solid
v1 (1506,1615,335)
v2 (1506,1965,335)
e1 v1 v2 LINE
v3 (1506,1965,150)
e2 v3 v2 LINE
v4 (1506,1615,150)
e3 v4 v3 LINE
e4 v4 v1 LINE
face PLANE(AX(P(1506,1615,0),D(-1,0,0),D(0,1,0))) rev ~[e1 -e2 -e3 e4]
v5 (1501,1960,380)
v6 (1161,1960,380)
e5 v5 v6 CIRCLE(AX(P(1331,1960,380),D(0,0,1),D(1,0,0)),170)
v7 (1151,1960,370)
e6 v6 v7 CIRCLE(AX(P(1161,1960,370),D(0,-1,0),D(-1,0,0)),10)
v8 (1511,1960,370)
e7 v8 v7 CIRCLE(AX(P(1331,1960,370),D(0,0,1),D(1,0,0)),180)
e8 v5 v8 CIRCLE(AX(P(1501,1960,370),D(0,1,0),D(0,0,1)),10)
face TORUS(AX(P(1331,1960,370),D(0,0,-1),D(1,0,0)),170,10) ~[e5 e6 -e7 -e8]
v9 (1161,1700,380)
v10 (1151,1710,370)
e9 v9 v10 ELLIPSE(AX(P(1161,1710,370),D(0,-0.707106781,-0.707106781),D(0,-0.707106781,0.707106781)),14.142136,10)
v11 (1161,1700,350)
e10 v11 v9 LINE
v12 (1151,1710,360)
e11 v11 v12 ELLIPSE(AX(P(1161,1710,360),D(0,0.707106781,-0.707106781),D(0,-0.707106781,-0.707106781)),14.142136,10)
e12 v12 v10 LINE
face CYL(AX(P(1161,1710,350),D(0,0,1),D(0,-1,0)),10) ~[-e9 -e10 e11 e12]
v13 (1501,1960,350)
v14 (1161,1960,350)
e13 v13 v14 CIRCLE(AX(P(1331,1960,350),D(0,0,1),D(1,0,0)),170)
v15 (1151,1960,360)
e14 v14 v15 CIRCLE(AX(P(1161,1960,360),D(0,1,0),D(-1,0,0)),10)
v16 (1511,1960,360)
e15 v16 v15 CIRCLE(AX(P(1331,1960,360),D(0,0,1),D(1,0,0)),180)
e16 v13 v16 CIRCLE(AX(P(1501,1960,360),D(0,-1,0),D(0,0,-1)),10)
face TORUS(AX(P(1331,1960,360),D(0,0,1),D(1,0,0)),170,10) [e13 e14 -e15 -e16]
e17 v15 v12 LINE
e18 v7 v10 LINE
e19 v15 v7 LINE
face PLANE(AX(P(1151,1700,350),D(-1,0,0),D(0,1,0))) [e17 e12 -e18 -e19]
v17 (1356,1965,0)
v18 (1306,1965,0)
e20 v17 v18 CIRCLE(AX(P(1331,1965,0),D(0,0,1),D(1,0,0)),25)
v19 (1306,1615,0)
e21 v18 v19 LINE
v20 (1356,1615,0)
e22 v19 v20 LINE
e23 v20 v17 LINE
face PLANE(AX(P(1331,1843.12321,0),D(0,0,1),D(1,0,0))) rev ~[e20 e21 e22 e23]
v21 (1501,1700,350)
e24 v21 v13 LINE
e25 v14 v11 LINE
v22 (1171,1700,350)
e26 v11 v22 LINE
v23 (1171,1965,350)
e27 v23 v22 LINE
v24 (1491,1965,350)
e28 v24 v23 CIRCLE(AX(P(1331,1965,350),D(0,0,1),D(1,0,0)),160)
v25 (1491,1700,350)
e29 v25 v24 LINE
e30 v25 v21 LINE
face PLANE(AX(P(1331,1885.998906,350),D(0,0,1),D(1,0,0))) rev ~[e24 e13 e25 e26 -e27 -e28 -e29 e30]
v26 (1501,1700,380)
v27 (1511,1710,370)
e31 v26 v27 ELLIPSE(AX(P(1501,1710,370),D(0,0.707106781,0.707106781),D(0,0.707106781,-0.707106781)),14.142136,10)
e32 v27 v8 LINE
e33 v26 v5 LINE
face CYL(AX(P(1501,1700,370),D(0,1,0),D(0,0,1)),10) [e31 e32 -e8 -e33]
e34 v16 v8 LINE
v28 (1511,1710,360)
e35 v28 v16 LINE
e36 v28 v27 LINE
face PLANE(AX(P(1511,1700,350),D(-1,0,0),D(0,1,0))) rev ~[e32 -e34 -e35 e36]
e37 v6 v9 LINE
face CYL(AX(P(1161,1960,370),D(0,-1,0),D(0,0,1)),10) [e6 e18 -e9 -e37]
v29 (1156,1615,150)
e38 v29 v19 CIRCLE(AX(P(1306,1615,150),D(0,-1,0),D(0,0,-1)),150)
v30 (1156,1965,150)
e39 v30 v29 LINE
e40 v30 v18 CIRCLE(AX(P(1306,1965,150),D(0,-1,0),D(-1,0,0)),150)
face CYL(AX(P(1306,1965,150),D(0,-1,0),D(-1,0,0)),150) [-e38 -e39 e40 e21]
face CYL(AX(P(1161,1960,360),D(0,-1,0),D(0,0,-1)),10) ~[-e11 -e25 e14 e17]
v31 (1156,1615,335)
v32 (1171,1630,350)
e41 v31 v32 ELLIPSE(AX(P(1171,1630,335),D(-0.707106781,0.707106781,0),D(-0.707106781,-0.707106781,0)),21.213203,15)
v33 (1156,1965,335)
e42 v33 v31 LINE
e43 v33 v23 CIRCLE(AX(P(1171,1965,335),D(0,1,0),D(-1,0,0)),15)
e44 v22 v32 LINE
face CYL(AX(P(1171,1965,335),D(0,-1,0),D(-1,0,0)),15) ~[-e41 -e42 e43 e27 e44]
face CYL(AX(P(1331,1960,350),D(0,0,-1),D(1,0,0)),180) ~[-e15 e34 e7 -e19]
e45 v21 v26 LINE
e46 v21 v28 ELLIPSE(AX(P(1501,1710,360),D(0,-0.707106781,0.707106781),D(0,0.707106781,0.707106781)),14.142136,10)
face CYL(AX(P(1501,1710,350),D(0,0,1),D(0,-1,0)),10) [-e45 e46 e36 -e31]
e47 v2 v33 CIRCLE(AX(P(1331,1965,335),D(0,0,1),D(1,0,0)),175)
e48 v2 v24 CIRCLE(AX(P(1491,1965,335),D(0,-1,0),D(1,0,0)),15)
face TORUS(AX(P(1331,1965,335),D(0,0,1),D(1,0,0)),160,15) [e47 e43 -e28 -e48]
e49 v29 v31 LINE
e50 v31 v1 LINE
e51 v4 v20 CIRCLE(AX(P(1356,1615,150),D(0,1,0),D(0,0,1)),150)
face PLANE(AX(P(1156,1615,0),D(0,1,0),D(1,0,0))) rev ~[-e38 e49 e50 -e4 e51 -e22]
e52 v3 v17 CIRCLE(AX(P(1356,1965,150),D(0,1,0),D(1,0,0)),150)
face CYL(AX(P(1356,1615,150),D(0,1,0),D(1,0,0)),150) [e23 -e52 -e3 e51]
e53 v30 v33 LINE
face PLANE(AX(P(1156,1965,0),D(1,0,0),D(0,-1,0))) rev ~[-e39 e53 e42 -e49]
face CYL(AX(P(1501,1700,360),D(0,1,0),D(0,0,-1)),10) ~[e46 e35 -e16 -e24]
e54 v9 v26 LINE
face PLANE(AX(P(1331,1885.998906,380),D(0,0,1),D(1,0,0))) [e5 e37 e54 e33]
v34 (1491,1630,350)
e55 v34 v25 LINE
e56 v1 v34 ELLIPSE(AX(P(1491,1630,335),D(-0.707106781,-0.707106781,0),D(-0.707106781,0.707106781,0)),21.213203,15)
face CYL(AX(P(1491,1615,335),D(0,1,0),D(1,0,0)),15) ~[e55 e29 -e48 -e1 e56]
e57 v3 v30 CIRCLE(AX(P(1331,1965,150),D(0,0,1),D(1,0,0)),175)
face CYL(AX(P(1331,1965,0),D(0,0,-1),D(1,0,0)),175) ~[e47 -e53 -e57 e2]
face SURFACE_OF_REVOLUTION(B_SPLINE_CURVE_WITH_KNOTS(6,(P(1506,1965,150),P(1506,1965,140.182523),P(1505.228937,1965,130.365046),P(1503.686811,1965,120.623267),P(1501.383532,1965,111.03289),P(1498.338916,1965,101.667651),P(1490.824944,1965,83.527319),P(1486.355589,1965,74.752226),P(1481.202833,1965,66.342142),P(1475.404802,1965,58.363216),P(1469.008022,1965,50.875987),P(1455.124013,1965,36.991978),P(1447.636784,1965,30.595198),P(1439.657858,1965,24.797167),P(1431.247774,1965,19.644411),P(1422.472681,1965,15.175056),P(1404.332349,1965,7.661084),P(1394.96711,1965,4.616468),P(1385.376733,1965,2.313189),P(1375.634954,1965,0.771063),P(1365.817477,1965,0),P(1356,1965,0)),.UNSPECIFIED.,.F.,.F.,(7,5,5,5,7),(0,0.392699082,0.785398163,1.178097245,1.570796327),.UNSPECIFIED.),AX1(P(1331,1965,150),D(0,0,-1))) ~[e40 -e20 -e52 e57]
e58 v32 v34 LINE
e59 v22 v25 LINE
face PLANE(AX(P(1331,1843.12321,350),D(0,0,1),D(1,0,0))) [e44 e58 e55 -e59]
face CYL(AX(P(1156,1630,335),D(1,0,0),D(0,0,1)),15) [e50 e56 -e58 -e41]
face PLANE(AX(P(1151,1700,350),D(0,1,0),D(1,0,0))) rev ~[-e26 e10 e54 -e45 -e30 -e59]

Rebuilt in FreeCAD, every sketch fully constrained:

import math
import FreeCAD as App
import Part
import Sketcher
Q = App.Units.Quantity


def edges_at(feature, points):
    """Names of the edges that pass closest to the given points."""
    edges = feature.Shape.Edges
    near = lambda p: min(range(len(edges)), key=lambda i: edges[i].distToShape(Part.Vertex(*p))[0])
    return sorted({f"Edge{near(p) + 1}" for p in points})

doc = App.newDocument("Part")
body = doc.addObject("PartDesign::Body", "Body")

# Sketch on XY plane
sketch1 = body.newObject("Sketcher::SketchObject", "Sketch")
sketch1.AttachmentSupport = (doc.getObject("XY_Plane"), [""])
sketch1.MapMode = "FlatFace"
sketch1.addGeometry([
    Part.LineSegment(App.Vector(0, 350, 0), App.Vector(0, 0, 0)),
    Part.LineSegment(App.Vector(0, 0, 0), App.Vector(350, 0, 0)),
    Part.LineSegment(App.Vector(350, 0, 0), App.Vector(350, 350, 0)),
    Part.ArcOfCircle(Part.Circle(App.Vector(175, 350, 0), App.Vector(0, 0, 1), 175), math.radians(0), math.radians(180)),
], False)
sketch1.addConstraint([
    Sketcher.Constraint("Coincident", 0, 2, 1, 1),
    Sketcher.Constraint("Coincident", 1, 2, 2, 1),
    Sketcher.Constraint("Tangent", 2, 2, 3, 1),
    Sketcher.Constraint("Tangent", 3, 2, 0, 1),
    Sketcher.Constraint("Vertical", 0),
    Sketcher.Constraint("Horizontal", 1),
    Sketcher.Constraint("Vertical", 2),
    Sketcher.Constraint("Coincident", 0, 2, -1, 1),
    Sketcher.Constraint("Equal", 1, 0),
    Sketcher.Constraint("Radius", 3, Q("175 mm")),
])
pad1 = body.newObject("PartDesign::Pad", "Pad")
pad1.Profile = sketch1
pad1.Length = 350
doc.recompute()

fillet = body.newObject("PartDesign::Fillet", "Fillet")
fillet.Base = (pad1, edges_at(pad1, [(350, 175, 0), (175, 525, 0), (0, 175, 0)]))
fillet.Radius = 150
doc.recompute()

fillet2 = body.newObject("PartDesign::Fillet", "Fillet001")
fillet2.Base = (fillet, edges_at(fillet, [
    (0, 175, 350),
    (175, 0, 350),
    (350, 175, 350),
    (175, 525, 350),
]))
fillet2.Radius = 15

# Sketch on XY plane
sketch2 = body.newObject("Sketcher::SketchObject", "Sketch001")
sketch2.AttachmentSupport = (doc.getObject("XY_Plane"), [""])
sketch2.MapMode = "FlatFace"
sketch2.AttachmentOffset = App.Placement(App.Vector(0, 0, 350), App.Rotation())
sketch2.addGeometry([
    Part.LineSegment(App.Vector(-5, 85, 0), App.Vector(355, 85, 0)),
    Part.LineSegment(App.Vector(355, 85, 0), App.Vector(355, 345, 0)),
    Part.ArcOfCircle(Part.Circle(App.Vector(175, 345, 0), App.Vector(0, 0, 1), 180), math.radians(0), math.radians(180)),
    Part.LineSegment(App.Vector(-5, 345, 0), App.Vector(-5, 85, 0)),
], False)
sketch2.addConstraint([
    Sketcher.Constraint("Coincident", 0, 2, 1, 1),
    Sketcher.Constraint("Tangent", 1, 2, 2, 1),
    Sketcher.Constraint("Tangent", 2, 2, 3, 1),
    Sketcher.Constraint("Coincident", 3, 2, 0, 1),
    Sketcher.Constraint("Horizontal", 0),
    Sketcher.Constraint("Vertical", 1),
    Sketcher.Constraint("Vertical", 3),
    Sketcher.Constraint("Radius", 2, Q("180 mm")),
    Sketcher.Constraint("DistanceY", 1, 1, 1, 2, Q("260 mm")),
    Sketcher.Constraint("DistanceX", -1, 1, 2, 3, Q("175 mm")),
    Sketcher.Constraint("DistanceY", -1, 1, 2, 3, Q("345 mm")),
])
pad2 = body.newObject("PartDesign::Pad", "Pad001")
pad2.Profile = sketch2
pad2.Length = 30
doc.recompute()

fillet3 = body.newObject("PartDesign::Fillet", "Fillet002")
fillet3.Base = (pad2, edges_at(pad2, [
    (355, 345, 365),
    (-5, 345, 365),
    (175, 525, 350),
    (175, 525, 380),
    (-5, 85, 365),
    (-5, 215, 350),
    (-5, 215, 380),
    (355, 85, 365),
    (355, 215, 350),
    (355, 215, 380),
]))
fillet3.Radius = 10
body2 = doc.addObject("PartDesign::Body", "Body001")
doc.recompute()

body.Placement = App.Placement(App.Vector(1156, 1615, 0), App.Rotation(App.Vector(0, 0, 1), 0))
boolean = body2.newObject("PartDesign::Boolean", "Boolean")
boolean.Type = "Fuse"
boolean.addObjects([body])

doc.recompute()
